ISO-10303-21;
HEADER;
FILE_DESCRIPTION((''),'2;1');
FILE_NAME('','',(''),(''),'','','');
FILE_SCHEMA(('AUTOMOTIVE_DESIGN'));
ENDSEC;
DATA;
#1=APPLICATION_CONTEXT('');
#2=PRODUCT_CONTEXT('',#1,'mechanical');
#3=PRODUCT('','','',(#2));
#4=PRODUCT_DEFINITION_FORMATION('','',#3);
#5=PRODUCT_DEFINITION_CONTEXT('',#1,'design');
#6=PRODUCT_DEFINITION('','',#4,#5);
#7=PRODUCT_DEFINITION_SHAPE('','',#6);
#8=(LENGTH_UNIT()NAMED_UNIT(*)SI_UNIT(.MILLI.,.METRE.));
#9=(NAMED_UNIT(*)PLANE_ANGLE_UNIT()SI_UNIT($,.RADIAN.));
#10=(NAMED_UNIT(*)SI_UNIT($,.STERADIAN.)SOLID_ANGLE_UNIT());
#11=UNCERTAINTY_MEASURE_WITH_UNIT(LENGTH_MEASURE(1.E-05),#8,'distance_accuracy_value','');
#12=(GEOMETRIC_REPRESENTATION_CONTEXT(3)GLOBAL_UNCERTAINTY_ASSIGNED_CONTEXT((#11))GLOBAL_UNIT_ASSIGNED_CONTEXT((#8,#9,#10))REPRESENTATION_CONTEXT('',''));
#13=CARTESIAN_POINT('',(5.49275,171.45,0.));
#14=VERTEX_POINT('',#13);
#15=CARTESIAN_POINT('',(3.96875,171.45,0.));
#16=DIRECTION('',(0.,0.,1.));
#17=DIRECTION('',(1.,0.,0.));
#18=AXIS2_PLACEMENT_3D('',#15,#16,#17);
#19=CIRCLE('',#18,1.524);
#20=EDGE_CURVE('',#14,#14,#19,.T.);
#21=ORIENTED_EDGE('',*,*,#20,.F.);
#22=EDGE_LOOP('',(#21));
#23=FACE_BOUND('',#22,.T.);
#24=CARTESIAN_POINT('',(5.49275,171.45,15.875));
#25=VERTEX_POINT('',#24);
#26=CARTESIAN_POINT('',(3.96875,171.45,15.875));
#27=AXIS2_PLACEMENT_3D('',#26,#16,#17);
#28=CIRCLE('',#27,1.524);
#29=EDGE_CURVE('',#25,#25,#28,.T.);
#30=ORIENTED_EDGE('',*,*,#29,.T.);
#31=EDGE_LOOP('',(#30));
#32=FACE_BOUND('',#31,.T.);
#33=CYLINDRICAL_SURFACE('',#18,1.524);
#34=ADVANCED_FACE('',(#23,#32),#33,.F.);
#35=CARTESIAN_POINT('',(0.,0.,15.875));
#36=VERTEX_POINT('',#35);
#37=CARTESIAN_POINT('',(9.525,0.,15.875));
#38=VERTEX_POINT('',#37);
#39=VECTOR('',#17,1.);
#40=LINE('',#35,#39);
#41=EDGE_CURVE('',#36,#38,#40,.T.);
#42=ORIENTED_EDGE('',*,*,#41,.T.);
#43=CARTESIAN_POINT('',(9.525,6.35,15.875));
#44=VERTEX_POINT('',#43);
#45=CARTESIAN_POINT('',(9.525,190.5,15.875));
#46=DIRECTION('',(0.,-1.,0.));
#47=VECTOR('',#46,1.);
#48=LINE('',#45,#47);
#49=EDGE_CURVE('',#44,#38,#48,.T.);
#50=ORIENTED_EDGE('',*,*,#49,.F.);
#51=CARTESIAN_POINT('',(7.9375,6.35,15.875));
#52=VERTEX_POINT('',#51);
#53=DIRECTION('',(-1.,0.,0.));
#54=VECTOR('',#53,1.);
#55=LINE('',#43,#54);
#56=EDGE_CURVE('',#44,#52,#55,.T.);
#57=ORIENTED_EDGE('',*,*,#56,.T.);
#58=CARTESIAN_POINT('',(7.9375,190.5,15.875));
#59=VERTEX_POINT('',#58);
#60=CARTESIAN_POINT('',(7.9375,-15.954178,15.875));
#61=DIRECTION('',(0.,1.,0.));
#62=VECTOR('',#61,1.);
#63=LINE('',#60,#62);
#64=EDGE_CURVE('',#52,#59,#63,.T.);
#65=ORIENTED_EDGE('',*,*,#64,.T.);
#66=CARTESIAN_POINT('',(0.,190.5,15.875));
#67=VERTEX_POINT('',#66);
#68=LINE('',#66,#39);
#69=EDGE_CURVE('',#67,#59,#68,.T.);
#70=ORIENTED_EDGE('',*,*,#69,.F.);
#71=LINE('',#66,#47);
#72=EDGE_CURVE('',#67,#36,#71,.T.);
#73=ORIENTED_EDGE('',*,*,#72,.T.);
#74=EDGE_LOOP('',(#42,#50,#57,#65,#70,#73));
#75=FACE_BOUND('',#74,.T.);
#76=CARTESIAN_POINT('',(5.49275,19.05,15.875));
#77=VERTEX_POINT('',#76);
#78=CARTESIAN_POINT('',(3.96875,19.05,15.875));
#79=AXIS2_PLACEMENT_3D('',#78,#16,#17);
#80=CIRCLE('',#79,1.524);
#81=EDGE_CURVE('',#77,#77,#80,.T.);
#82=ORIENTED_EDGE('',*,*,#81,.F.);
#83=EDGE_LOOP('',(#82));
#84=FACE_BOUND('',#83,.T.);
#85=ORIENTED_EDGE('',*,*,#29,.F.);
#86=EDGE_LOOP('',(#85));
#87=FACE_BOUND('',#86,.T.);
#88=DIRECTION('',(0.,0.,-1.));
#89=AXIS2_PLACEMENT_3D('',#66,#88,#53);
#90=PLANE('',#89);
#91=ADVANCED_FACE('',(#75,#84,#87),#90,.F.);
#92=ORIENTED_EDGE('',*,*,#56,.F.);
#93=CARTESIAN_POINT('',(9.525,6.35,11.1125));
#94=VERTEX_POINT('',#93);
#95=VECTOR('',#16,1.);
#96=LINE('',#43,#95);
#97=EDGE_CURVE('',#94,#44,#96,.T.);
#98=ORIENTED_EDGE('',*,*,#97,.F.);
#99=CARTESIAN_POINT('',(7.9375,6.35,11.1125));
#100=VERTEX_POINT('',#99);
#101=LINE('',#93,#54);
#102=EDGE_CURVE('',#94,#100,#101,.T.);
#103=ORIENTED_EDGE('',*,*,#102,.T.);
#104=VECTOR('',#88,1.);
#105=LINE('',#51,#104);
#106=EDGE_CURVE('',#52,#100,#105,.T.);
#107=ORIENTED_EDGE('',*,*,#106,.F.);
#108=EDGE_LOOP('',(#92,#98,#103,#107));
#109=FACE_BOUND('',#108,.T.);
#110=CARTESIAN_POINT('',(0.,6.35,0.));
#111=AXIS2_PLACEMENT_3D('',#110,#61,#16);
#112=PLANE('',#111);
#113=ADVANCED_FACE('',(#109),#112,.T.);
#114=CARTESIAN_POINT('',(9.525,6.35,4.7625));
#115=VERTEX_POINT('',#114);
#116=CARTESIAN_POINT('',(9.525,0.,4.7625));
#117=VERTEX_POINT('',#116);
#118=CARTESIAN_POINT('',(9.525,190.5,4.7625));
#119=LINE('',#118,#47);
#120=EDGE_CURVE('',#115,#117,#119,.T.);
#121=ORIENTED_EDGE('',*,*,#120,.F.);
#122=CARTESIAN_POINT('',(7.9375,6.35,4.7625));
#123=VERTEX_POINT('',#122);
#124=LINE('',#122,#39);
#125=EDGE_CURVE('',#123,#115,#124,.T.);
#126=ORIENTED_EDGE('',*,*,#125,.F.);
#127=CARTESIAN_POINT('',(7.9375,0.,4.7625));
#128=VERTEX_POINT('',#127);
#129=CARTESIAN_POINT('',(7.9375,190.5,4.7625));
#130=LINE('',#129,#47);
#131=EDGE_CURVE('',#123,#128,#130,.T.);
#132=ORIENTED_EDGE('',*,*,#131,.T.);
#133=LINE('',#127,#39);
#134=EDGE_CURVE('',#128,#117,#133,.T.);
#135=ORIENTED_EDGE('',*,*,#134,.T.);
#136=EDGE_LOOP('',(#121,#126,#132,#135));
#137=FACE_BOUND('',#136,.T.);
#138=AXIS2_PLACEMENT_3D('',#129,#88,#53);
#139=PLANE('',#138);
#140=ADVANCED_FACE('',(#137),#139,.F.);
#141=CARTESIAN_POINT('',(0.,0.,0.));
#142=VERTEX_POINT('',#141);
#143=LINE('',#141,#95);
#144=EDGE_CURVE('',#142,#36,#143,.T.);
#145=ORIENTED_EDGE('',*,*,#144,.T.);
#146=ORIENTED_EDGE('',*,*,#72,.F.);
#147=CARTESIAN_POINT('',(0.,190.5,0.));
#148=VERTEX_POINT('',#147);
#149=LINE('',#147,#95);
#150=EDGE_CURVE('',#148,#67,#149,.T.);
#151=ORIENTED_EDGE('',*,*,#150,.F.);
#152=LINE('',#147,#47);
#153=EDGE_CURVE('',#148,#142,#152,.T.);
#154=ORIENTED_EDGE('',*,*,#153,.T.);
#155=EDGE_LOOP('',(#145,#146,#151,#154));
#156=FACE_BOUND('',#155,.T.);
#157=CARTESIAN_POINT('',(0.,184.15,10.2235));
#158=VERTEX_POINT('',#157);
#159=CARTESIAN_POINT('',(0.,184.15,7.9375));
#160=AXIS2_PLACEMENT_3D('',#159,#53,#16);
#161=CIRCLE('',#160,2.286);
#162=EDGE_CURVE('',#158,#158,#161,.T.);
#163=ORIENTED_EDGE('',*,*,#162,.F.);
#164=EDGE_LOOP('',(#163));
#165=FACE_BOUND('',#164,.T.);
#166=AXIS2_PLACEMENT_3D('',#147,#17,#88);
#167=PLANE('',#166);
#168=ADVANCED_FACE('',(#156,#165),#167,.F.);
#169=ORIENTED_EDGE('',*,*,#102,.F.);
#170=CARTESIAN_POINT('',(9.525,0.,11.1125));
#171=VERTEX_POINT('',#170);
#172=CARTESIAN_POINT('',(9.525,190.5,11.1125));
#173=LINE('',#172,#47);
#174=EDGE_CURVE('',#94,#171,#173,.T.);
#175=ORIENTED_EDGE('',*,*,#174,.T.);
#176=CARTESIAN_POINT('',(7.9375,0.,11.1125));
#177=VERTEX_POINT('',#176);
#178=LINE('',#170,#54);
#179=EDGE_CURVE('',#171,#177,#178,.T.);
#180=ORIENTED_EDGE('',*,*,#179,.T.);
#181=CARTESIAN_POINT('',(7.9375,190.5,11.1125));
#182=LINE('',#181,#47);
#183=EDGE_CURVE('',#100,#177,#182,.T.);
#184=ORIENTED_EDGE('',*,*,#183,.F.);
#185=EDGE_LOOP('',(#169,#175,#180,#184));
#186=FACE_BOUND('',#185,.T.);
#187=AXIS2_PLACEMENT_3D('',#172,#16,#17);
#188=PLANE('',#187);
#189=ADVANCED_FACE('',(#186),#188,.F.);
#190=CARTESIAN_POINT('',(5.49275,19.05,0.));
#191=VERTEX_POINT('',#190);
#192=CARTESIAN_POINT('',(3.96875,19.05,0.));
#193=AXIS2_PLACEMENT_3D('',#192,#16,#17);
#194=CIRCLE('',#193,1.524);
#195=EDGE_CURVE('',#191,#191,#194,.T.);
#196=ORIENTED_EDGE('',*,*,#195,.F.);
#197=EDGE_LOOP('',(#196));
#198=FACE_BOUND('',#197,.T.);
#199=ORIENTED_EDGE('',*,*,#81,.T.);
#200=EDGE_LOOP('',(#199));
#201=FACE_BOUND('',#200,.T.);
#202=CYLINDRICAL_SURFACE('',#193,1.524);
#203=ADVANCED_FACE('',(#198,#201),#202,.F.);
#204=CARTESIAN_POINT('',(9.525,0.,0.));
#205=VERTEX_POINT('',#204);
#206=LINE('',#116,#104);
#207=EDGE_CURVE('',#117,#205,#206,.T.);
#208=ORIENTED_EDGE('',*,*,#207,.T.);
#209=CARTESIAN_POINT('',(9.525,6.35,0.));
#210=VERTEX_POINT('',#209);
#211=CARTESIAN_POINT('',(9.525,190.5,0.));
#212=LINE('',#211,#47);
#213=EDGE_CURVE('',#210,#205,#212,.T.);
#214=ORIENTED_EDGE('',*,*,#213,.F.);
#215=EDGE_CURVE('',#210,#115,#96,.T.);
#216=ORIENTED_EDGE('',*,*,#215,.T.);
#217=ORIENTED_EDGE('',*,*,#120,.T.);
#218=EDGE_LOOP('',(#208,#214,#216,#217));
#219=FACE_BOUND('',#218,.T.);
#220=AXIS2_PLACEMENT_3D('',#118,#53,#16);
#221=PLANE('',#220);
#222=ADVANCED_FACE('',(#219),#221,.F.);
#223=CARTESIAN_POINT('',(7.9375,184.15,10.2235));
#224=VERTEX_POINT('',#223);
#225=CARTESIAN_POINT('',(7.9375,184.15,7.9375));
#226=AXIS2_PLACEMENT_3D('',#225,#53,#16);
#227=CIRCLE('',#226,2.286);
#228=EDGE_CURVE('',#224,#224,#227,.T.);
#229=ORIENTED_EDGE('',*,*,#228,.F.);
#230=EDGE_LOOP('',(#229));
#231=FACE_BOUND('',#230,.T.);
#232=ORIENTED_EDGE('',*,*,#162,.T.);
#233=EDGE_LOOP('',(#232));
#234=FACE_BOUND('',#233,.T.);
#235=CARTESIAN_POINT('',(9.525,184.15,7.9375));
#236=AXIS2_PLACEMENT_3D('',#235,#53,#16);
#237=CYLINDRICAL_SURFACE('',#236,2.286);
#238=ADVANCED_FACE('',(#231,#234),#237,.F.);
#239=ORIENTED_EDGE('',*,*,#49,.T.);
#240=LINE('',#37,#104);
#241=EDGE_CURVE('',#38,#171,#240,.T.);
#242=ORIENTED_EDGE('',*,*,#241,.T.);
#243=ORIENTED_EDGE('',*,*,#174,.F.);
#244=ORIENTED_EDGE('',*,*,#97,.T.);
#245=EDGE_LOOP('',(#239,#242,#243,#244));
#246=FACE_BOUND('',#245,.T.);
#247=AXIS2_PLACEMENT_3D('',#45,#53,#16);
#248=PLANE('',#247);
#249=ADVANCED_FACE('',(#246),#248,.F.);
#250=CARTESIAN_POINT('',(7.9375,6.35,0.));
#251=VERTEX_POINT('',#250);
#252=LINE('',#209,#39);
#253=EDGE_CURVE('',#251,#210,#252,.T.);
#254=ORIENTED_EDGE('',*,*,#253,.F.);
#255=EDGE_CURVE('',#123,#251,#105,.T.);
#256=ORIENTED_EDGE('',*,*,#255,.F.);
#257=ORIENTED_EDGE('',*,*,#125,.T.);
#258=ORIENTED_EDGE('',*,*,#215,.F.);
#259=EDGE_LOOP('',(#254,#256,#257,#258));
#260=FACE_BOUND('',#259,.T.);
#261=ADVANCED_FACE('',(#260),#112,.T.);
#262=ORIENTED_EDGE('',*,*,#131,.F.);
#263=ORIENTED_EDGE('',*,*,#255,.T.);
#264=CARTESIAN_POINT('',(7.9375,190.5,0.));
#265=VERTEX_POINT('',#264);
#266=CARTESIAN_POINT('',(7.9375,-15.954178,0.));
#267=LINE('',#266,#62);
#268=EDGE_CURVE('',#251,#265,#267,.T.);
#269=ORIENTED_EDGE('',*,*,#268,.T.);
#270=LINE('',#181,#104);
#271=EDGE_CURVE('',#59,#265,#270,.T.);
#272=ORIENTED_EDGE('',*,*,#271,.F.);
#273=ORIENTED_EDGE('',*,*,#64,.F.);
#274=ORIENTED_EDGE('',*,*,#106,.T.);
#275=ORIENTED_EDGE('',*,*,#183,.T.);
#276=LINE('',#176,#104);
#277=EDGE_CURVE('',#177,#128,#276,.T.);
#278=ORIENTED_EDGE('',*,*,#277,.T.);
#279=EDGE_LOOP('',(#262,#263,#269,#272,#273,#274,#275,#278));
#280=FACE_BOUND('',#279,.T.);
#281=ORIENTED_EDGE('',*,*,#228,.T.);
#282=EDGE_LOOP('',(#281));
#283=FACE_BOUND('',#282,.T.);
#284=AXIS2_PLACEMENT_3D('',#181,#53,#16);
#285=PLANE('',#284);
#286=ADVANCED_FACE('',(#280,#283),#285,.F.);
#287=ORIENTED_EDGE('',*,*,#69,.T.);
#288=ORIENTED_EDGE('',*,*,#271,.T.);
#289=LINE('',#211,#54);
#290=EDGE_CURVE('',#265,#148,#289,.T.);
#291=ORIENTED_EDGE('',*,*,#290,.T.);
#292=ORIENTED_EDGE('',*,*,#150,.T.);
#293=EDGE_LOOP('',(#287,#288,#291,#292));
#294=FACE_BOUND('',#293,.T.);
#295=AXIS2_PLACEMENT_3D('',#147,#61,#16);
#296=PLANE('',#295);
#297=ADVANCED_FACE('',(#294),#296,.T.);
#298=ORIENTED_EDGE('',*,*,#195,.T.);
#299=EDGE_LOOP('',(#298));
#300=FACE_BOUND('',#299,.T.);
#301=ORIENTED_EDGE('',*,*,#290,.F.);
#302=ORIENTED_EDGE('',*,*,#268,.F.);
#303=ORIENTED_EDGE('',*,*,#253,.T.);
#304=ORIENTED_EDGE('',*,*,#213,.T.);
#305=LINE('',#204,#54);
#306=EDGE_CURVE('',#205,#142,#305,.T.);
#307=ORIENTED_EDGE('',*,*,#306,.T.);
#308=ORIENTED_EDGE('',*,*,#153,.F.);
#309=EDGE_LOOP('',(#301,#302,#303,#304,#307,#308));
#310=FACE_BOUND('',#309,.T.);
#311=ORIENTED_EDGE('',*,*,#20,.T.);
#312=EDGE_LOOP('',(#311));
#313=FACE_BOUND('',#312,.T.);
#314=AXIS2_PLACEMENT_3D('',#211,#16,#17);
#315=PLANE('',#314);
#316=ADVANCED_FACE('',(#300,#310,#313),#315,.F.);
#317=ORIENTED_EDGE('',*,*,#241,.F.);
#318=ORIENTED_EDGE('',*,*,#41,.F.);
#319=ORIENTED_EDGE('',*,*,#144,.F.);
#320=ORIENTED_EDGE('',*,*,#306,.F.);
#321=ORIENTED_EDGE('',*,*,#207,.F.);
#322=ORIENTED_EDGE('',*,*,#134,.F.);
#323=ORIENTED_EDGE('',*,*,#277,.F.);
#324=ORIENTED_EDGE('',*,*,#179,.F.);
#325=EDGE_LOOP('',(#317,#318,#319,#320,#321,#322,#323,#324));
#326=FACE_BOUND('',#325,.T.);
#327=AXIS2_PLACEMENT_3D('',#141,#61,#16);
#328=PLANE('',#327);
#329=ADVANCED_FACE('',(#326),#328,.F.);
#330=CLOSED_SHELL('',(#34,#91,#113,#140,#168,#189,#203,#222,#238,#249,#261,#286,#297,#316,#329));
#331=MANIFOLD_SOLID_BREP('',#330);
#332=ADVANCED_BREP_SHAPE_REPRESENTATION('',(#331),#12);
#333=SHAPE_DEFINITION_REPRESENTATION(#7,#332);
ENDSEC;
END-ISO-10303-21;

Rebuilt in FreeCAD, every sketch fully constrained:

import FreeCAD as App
import Part
import Sketcher
from FreeCAD import Vector
Q = App.Units.Quantity

doc = App.newDocument("Part")
body = doc.addObject("PartDesign::Body", "Body")

# Sketch on XZ plane
sketch1 = doc.addObject("Sketcher::SketchObject", "Sketch")
body.addObject(sketch1)
sketch1.AttachmentSupport = (doc.XZ_Plane, [""])
sketch1.MapMode = "FlatFace"
sketch1.addGeometry(Part.LineSegment(Vector(0, 0, 0), Vector(0, 15.9, 0)), False)
sketch1.addGeometry(Part.LineSegment(Vector(0, 15.9, 0), Vector(9.5, 15.9, 0)), False)
sketch1.addGeometry(Part.LineSegment(Vector(9.5, 15.9, 0), Vector(9.5, 11.1, 0)), False)
sketch1.addGeometry(Part.LineSegment(Vector(9.5, 11.1, 0), Vector(7.9, 11.1, 0)), False)
sketch1.addGeometry(Part.LineSegment(Vector(7.9, 11.1, 0), Vector(7.9, 4.8, 0)), False)
sketch1.addGeometry(Part.LineSegment(Vector(7.9, 4.8, 0), Vector(9.5, 4.8, 0)), False)
sketch1.addGeometry(Part.LineSegment(Vector(9.5, 4.8, 0), Vector(9.5, 0, 0)), False)
sketch1.addGeometry(Part.LineSegment(Vector(9.5, 0, 0), Vector(0, 0, 0)), False)
sketch1.addConstraint(Sketcher.Constraint("Coincident", 0, 2, 1, 1))
sketch1.addConstraint(Sketcher.Constraint("Coincident", 1, 2, 2, 1))
sketch1.addConstraint(Sketcher.Constraint("Coincident", 2, 2, 3, 1))
sketch1.addConstraint(Sketcher.Constraint("Coincident", 3, 2, 4, 1))
sketch1.addConstraint(Sketcher.Constraint("Coincident", 4, 2, 5, 1))
sketch1.addConstraint(Sketcher.Constraint("Coincident", 5, 2, 6, 1))
sketch1.addConstraint(Sketcher.Constraint("Coincident", 6, 2, 7, 1))
sketch1.addConstraint(Sketcher.Constraint("Coincident", 7, 2, 0, 1))
sketch1.addConstraint(Sketcher.Constraint("Vertical", 0))
sketch1.addConstraint(Sketcher.Constraint("Horizontal", 1))
sketch1.addConstraint(Sketcher.Constraint("Vertical", 2))
sketch1.addConstraint(Sketcher.Constraint("Horizontal", 3))
sketch1.addConstraint(Sketcher.Constraint("Vertical", 4))
sketch1.addConstraint(Sketcher.Constraint("Horizontal", 5))
sketch1.addConstraint(Sketcher.Constraint("Vertical", 6))
sketch1.addConstraint(Sketcher.Constraint("Horizontal", 7))
sketch1.addConstraint(Sketcher.Constraint("Coincident", 7, 2, -1, 1))
sketch1.addConstraint(Sketcher.Constraint("Vertical", 2, 2, 5, 2))
sketch1.addConstraint(Sketcher.Constraint("Equal", 2, 6))
sketch1.addConstraint(Sketcher.Constraint("DistanceY", 4, 2, 4, 1, Q("0.25 in")))
sketch1.addConstraint(Sketcher.Constraint("DistanceX", 1, 1, 1, 2, Q("0.375 in")))
sketch1.addConstraint(Sketcher.Constraint("DistanceX", 3, 2, 3, 1, Q("0.0625 in")))
sketch1.addConstraint(Sketcher.Constraint("DistanceY", 0, 1, 0, 2, Q("0.625 in")))
pad1 = doc.addObject("PartDesign::Pad", "Pad")
body.addObject(pad1)
pad1.Profile = sketch1
pad1.Length = Q("7.5 in")
pad1.Reversed = True

# Sketch on XZ plane
sketch2 = doc.addObject("Sketcher::SketchObject", "Sketch001")
body.addObject(sketch2)
sketch2.AttachmentSupport = (doc.XZ_Plane, [""])
sketch2.MapMode = "FlatFace"
sketch2.AttachmentOffset = App.Placement(Vector(0, 0, -7.5 * 25.4), App.Rotation())
sketch2.addGeometry(Part.LineSegment(Vector(7.9, 0, 0), Vector(7.9, 15.9, 0)), False)
sketch2.addGeometry(Part.LineSegment(Vector(7.9, 15.9, 0), Vector(9.5, 15.9, 0)), False)
sketch2.addGeometry(Part.LineSegment(Vector(9.5, 15.9, 0), Vector(9.5, 0, 0)), False)
sketch2.addGeometry(Part.LineSegment(Vector(9.5, 0, 0), Vector(7.9, 0, 0)), False)
sketch2.addConstraint(Sketcher.Constraint("Coincident", 0, 2, 1, 1))
sketch2.addConstraint(Sketcher.Constraint("Coincident", 1, 2, 2, 1))
sketch2.addConstraint(Sketcher.Constraint("Coincident", 2, 2, 3, 1))
sketch2.addConstraint(Sketcher.Constraint("Coincident", 3, 2, 0, 1))
sketch2.addConstraint(Sketcher.Constraint("Vertical", 0))
sketch2.addConstraint(Sketcher.Constraint("Horizontal", 1))
sketch2.addConstraint(Sketcher.Constraint("Vertical", 2))
sketch2.addConstraint(Sketcher.Constraint("Horizontal", 3))
sketch2.addConstraint(Sketcher.Constraint("PointOnObject", 2, 2, -1))
sketch2.addConstraint(Sketcher.Constraint("DistanceX", 1, 1, 1, 2, Q("0.0625 in")))
sketch2.addConstraint(Sketcher.Constraint("DistanceY", 0, 1, 0, 2, Q("0.625 in")))
sketch2.addConstraint(Sketcher.Constraint("DistanceX", -1, 1, 0, 2, Q("0.3125 in")))
pocket1 = doc.addObject("PartDesign::Pocket", "Pocket")
body.addObject(pocket1)
pocket1.Profile = sketch2
pocket1.Length = Q("7.25 in")
pocket1.Reversed = True

# Sketch on XY plane
sketch3 = doc.addObject("Sketcher::SketchObject", "Sketch002")
body.addObject(sketch3)
sketch3.AttachmentSupport = (doc.XY_Plane, [""])
sketch3.MapMode = "FlatFace"
sketch3.AttachmentOffset = App.Placement(Vector(0, 0, 0.625 * 25.4), App.Rotation())
sketch3.addGeometry(Part.Circle(Vector(4, 19.1, 0), Vector(0, 0, 1), 1.5), False)
sketch3.addGeometry(Part.Circle(Vector(4, 171.4, 0), Vector(0, 0, 1), 1.5), False)
sketch3.addConstraint(Sketcher.Constraint("Equal", 0, 1))
sketch3.addConstraint(Sketcher.Constraint("Vertical", 0, 3, 1, 3))
sketch3.addConstraint(Sketcher.Constraint("Diameter", 0, Q("0.12 in")))
sketch3.addConstraint(Sketcher.Constraint("DistanceY", 0, 3, 1, 3, Q("6 in")))
sketch3.addConstraint(Sketcher.Constraint("DistanceY", -1, 1, 0, 3, Q("0.75 in")))
sketch3.addConstraint(Sketcher.Constraint("DistanceX", -1, 1, 0, 3, Q("0.15625 in")))
pocket2 = doc.addObject("PartDesign::Pocket", "Pocket001")
body.addObject(pocket2)
pocket2.Profile = sketch3
pocket2.Type = "ThroughAll"

# Sketch on YZ plane
sketch4 = doc.addObject("Sketcher::SketchObject", "Sketch003")
body.addObject(sketch4)
sketch4.AttachmentSupport = (doc.YZ_Plane, [""])
sketch4.MapMode = "FlatFace"
sketch4.addGeometry(Part.Circle(Vector(184.2, 7.9, 0), Vector(0, 0, 1), 2.3), False)
sketch4.addConstraint(Sketcher.Constraint("Diameter", 0, Q("0.18 in")))
sketch4.addConstraint(Sketcher.Constraint("DistanceX", -1, 1, 0, 3, Q("7.25 in")))
sketch4.addConstraint(Sketcher.Constraint("DistanceY", -1, 1, 0, 3, Q("0.3125 in")))
pocket3 = doc.addObject("PartDesign::Pocket", "Pocket002")
body.addObject(pocket3)
pocket3.Profile = sketch4
pocket3.Type = "ThroughAll"
pocket3.Reversed = True

doc.recompute()
